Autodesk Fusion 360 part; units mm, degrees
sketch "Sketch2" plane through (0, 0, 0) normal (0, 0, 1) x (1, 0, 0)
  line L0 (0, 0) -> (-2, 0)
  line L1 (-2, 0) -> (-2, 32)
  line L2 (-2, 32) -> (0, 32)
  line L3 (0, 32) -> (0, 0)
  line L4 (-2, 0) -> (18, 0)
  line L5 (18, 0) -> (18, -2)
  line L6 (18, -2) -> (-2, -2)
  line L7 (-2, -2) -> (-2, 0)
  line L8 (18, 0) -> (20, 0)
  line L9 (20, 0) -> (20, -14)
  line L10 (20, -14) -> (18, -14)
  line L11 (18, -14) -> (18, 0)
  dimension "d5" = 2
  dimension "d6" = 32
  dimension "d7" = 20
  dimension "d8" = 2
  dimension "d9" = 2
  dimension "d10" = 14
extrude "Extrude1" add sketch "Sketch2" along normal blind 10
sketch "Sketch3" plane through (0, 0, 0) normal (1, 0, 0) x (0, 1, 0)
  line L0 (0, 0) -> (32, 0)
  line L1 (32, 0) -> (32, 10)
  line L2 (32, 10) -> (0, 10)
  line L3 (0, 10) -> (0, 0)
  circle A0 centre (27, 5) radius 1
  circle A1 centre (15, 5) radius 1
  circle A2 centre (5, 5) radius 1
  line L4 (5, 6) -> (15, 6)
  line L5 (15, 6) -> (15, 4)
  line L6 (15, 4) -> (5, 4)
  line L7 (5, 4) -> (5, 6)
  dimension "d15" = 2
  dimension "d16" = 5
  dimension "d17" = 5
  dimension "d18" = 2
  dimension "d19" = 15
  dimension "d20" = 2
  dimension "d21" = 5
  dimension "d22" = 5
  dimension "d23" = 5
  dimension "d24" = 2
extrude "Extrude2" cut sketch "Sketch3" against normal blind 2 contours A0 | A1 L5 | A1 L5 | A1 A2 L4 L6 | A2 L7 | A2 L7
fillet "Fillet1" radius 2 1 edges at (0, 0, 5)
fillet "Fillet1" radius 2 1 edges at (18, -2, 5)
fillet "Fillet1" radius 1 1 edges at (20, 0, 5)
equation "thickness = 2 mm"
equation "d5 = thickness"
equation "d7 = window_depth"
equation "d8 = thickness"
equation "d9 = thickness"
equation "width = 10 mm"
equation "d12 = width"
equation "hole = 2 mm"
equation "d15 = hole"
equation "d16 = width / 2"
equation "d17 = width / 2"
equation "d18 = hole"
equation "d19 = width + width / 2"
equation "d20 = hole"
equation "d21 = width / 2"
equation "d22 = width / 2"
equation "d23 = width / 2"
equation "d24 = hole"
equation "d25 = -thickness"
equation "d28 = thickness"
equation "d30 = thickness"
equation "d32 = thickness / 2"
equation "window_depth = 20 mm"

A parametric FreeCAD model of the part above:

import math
import FreeCAD as App
import Part
import Sketcher
from FreeCAD import Vector


def edges_at(feature, points):
    """Names of the edges that pass closest to the given points."""
    edges = feature.Shape.Edges
    near = lambda p: min(range(len(edges)), key=lambda i: edges[i].distToShape(Part.Vertex(*p))[0])
    return sorted({f"Edge{near(p) + 1}" for p in points})

doc = App.newDocument("Part")
body = doc.addObject("PartDesign::Body", "Body")

# Sketch on XY plane
sketch1 = doc.addObject("Sketcher::SketchObject", "Sketch")
body.addObject(sketch1)
sketch1.AttachmentSupport = (doc.XY_Plane, [""])
sketch1.MapMode = "FlatFace"
sketch1.addGeometry([
    Part.LineSegment(Vector(0, 0, 0), Vector(0, 32, 0)),  # 0
    Part.LineSegment(Vector(0, 32, 0), Vector(-2, 32, 0)),  # 1
    Part.LineSegment(Vector(-2, 32, 0), Vector(-2, -2, 0)),  # 2
    Part.LineSegment(Vector(-2, -2, 0), Vector(18, -2, 0)),  # 3
    Part.LineSegment(Vector(18, -2, 0), Vector(18, -14, 0)),  # 4
    Part.LineSegment(Vector(18, -14, 0), Vector(20, -14, 0)),  # 5
    Part.LineSegment(Vector(20, -14, 0), Vector(20, 0, 0)),  # 6
    Part.LineSegment(Vector(20, 0, 0), Vector(0, 0, 0)),  # 7
], False)
sketch1.addConstraint([
    Sketcher.Constraint("Coincident", 0, 2, 1, 1),
    Sketcher.Constraint("Coincident", 1, 2, 2, 1),
    Sketcher.Constraint("Coincident", 2, 2, 3, 1),
    Sketcher.Constraint("Coincident", 3, 2, 4, 1),
    Sketcher.Constraint("Coincident", 4, 2, 5, 1),
    Sketcher.Constraint("Coincident", 5, 2, 6, 1),
    Sketcher.Constraint("Coincident", 6, 2, 7, 1),
    Sketcher.Constraint("Coincident", 7, 2, 0, 1),
    Sketcher.Constraint("Vertical", 0),
    Sketcher.Constraint("Horizontal", 1),
    Sketcher.Constraint("Vertical", 2),
    Sketcher.Constraint("Horizontal", 3),
    Sketcher.Constraint("Vertical", 4),
    Sketcher.Constraint("Horizontal", 5),
    Sketcher.Constraint("Vertical", 6),
    Sketcher.Constraint("Horizontal", 7),
    Sketcher.Constraint("Coincident", 7, 2, -1, 1),
    Sketcher.Constraint("Equal", 1, 5),
    Sketcher.Constraint("DistanceX", 1, 2, 1, 1, 2.0),
    Sketcher.Constraint("DistanceX", 3, 1, 3, 2, 20.0),
    Sketcher.Constraint("DistanceY", 0, 1, 0, 2, 32.0),
    Sketcher.Constraint("DistanceY", 6, 1, 6, 2, 14.0),
    Sketcher.Constraint("DistanceY", 2, 2, -1, 1, 2.0),
])
pad1 = doc.addObject("PartDesign::Pad", "Pad")
body.addObject(pad1)
pad1.Profile = sketch1
pad1.Length = 10

# Sketch on YZ plane
sketch2 = doc.addObject("Sketcher::SketchObject", "Sketch001")
body.addObject(sketch2)
sketch2.AttachmentSupport = (doc.YZ_Plane, [""])
sketch2.MapMode = "FlatFace"
sketch2.addGeometry([
    Part.Circle(Vector(27, 5, 0), Vector(0, 0, 1), 1),  # 0
    Part.ArcOfCircle(Part.Circle(Vector(15, 5, 0), Vector(0, 0, 1), 1), math.radians(-90), math.radians(90)),  # 1
    Part.LineSegment(Vector(15, 6, 0), Vector(5, 6, 0)),  # 2
    Part.ArcOfCircle(Part.Circle(Vector(5, 5, 0), Vector(0, 0, 1), 1), math.radians(90), math.radians(270)),  # 3
    Part.LineSegment(Vector(5, 4, 0), Vector(15, 4, 0)),  # 4
], False)
sketch2.addConstraint([
    Sketcher.Constraint("Tangent", 1, 2, 2, 1),
    Sketcher.Constraint("Tangent", 2, 2, 3, 1),
    Sketcher.Constraint("Tangent", 3, 2, 4, 1),
    Sketcher.Constraint("Tangent", 4, 2, 1, 1),
    Sketcher.Constraint("Horizontal", 2),
    Sketcher.Constraint("Horizontal", 4),
    Sketcher.Constraint("Equal", 0, 1),
    Sketcher.Constraint("Horizontal", 0, 3, 1, 3),
    Sketcher.Constraint("Diameter", 0, 2.0),
    Sketcher.Constraint("DistanceY", -1, 1, 0, 3, 5.0),
    Sketcher.Constraint("DistanceX", -1, 1, 1, 3, 15.0),
    Sketcher.Constraint("DistanceX", -1, 1, 3, 3, 5.0),
    Sketcher.Constraint("DistanceX", -1, 1, 0, 3, 27.0),
])
pocket1 = doc.addObject("PartDesign::Pocket", "Pocket")
body.addObject(pocket1)
pocket1.Profile = sketch2
pocket1.Length = 2
doc.recompute()

fillet = doc.addObject("PartDesign::Fillet", "Fillet")
body.addObject(fillet)
fillet.Base = (pocket1, edges_at(pocket1, [(0, 0, 5)]))
fillet.Radius = 2
doc.recompute()

fillet2 = doc.addObject("PartDesign::Fillet", "Fillet001")
body.addObject(fillet2)
fillet2.Base = (fillet, edges_at(fillet, [(18, -2, 5)]))
fillet2.Radius = 2
doc.recompute()

fillet3 = doc.addObject("PartDesign::Fillet", "Fillet002")
body.addObject(fillet3)
fillet3.Base = (fillet2, edges_at(fillet2, [(20, 0, 5)]))
fillet3.Radius = 1

doc.recompute()
